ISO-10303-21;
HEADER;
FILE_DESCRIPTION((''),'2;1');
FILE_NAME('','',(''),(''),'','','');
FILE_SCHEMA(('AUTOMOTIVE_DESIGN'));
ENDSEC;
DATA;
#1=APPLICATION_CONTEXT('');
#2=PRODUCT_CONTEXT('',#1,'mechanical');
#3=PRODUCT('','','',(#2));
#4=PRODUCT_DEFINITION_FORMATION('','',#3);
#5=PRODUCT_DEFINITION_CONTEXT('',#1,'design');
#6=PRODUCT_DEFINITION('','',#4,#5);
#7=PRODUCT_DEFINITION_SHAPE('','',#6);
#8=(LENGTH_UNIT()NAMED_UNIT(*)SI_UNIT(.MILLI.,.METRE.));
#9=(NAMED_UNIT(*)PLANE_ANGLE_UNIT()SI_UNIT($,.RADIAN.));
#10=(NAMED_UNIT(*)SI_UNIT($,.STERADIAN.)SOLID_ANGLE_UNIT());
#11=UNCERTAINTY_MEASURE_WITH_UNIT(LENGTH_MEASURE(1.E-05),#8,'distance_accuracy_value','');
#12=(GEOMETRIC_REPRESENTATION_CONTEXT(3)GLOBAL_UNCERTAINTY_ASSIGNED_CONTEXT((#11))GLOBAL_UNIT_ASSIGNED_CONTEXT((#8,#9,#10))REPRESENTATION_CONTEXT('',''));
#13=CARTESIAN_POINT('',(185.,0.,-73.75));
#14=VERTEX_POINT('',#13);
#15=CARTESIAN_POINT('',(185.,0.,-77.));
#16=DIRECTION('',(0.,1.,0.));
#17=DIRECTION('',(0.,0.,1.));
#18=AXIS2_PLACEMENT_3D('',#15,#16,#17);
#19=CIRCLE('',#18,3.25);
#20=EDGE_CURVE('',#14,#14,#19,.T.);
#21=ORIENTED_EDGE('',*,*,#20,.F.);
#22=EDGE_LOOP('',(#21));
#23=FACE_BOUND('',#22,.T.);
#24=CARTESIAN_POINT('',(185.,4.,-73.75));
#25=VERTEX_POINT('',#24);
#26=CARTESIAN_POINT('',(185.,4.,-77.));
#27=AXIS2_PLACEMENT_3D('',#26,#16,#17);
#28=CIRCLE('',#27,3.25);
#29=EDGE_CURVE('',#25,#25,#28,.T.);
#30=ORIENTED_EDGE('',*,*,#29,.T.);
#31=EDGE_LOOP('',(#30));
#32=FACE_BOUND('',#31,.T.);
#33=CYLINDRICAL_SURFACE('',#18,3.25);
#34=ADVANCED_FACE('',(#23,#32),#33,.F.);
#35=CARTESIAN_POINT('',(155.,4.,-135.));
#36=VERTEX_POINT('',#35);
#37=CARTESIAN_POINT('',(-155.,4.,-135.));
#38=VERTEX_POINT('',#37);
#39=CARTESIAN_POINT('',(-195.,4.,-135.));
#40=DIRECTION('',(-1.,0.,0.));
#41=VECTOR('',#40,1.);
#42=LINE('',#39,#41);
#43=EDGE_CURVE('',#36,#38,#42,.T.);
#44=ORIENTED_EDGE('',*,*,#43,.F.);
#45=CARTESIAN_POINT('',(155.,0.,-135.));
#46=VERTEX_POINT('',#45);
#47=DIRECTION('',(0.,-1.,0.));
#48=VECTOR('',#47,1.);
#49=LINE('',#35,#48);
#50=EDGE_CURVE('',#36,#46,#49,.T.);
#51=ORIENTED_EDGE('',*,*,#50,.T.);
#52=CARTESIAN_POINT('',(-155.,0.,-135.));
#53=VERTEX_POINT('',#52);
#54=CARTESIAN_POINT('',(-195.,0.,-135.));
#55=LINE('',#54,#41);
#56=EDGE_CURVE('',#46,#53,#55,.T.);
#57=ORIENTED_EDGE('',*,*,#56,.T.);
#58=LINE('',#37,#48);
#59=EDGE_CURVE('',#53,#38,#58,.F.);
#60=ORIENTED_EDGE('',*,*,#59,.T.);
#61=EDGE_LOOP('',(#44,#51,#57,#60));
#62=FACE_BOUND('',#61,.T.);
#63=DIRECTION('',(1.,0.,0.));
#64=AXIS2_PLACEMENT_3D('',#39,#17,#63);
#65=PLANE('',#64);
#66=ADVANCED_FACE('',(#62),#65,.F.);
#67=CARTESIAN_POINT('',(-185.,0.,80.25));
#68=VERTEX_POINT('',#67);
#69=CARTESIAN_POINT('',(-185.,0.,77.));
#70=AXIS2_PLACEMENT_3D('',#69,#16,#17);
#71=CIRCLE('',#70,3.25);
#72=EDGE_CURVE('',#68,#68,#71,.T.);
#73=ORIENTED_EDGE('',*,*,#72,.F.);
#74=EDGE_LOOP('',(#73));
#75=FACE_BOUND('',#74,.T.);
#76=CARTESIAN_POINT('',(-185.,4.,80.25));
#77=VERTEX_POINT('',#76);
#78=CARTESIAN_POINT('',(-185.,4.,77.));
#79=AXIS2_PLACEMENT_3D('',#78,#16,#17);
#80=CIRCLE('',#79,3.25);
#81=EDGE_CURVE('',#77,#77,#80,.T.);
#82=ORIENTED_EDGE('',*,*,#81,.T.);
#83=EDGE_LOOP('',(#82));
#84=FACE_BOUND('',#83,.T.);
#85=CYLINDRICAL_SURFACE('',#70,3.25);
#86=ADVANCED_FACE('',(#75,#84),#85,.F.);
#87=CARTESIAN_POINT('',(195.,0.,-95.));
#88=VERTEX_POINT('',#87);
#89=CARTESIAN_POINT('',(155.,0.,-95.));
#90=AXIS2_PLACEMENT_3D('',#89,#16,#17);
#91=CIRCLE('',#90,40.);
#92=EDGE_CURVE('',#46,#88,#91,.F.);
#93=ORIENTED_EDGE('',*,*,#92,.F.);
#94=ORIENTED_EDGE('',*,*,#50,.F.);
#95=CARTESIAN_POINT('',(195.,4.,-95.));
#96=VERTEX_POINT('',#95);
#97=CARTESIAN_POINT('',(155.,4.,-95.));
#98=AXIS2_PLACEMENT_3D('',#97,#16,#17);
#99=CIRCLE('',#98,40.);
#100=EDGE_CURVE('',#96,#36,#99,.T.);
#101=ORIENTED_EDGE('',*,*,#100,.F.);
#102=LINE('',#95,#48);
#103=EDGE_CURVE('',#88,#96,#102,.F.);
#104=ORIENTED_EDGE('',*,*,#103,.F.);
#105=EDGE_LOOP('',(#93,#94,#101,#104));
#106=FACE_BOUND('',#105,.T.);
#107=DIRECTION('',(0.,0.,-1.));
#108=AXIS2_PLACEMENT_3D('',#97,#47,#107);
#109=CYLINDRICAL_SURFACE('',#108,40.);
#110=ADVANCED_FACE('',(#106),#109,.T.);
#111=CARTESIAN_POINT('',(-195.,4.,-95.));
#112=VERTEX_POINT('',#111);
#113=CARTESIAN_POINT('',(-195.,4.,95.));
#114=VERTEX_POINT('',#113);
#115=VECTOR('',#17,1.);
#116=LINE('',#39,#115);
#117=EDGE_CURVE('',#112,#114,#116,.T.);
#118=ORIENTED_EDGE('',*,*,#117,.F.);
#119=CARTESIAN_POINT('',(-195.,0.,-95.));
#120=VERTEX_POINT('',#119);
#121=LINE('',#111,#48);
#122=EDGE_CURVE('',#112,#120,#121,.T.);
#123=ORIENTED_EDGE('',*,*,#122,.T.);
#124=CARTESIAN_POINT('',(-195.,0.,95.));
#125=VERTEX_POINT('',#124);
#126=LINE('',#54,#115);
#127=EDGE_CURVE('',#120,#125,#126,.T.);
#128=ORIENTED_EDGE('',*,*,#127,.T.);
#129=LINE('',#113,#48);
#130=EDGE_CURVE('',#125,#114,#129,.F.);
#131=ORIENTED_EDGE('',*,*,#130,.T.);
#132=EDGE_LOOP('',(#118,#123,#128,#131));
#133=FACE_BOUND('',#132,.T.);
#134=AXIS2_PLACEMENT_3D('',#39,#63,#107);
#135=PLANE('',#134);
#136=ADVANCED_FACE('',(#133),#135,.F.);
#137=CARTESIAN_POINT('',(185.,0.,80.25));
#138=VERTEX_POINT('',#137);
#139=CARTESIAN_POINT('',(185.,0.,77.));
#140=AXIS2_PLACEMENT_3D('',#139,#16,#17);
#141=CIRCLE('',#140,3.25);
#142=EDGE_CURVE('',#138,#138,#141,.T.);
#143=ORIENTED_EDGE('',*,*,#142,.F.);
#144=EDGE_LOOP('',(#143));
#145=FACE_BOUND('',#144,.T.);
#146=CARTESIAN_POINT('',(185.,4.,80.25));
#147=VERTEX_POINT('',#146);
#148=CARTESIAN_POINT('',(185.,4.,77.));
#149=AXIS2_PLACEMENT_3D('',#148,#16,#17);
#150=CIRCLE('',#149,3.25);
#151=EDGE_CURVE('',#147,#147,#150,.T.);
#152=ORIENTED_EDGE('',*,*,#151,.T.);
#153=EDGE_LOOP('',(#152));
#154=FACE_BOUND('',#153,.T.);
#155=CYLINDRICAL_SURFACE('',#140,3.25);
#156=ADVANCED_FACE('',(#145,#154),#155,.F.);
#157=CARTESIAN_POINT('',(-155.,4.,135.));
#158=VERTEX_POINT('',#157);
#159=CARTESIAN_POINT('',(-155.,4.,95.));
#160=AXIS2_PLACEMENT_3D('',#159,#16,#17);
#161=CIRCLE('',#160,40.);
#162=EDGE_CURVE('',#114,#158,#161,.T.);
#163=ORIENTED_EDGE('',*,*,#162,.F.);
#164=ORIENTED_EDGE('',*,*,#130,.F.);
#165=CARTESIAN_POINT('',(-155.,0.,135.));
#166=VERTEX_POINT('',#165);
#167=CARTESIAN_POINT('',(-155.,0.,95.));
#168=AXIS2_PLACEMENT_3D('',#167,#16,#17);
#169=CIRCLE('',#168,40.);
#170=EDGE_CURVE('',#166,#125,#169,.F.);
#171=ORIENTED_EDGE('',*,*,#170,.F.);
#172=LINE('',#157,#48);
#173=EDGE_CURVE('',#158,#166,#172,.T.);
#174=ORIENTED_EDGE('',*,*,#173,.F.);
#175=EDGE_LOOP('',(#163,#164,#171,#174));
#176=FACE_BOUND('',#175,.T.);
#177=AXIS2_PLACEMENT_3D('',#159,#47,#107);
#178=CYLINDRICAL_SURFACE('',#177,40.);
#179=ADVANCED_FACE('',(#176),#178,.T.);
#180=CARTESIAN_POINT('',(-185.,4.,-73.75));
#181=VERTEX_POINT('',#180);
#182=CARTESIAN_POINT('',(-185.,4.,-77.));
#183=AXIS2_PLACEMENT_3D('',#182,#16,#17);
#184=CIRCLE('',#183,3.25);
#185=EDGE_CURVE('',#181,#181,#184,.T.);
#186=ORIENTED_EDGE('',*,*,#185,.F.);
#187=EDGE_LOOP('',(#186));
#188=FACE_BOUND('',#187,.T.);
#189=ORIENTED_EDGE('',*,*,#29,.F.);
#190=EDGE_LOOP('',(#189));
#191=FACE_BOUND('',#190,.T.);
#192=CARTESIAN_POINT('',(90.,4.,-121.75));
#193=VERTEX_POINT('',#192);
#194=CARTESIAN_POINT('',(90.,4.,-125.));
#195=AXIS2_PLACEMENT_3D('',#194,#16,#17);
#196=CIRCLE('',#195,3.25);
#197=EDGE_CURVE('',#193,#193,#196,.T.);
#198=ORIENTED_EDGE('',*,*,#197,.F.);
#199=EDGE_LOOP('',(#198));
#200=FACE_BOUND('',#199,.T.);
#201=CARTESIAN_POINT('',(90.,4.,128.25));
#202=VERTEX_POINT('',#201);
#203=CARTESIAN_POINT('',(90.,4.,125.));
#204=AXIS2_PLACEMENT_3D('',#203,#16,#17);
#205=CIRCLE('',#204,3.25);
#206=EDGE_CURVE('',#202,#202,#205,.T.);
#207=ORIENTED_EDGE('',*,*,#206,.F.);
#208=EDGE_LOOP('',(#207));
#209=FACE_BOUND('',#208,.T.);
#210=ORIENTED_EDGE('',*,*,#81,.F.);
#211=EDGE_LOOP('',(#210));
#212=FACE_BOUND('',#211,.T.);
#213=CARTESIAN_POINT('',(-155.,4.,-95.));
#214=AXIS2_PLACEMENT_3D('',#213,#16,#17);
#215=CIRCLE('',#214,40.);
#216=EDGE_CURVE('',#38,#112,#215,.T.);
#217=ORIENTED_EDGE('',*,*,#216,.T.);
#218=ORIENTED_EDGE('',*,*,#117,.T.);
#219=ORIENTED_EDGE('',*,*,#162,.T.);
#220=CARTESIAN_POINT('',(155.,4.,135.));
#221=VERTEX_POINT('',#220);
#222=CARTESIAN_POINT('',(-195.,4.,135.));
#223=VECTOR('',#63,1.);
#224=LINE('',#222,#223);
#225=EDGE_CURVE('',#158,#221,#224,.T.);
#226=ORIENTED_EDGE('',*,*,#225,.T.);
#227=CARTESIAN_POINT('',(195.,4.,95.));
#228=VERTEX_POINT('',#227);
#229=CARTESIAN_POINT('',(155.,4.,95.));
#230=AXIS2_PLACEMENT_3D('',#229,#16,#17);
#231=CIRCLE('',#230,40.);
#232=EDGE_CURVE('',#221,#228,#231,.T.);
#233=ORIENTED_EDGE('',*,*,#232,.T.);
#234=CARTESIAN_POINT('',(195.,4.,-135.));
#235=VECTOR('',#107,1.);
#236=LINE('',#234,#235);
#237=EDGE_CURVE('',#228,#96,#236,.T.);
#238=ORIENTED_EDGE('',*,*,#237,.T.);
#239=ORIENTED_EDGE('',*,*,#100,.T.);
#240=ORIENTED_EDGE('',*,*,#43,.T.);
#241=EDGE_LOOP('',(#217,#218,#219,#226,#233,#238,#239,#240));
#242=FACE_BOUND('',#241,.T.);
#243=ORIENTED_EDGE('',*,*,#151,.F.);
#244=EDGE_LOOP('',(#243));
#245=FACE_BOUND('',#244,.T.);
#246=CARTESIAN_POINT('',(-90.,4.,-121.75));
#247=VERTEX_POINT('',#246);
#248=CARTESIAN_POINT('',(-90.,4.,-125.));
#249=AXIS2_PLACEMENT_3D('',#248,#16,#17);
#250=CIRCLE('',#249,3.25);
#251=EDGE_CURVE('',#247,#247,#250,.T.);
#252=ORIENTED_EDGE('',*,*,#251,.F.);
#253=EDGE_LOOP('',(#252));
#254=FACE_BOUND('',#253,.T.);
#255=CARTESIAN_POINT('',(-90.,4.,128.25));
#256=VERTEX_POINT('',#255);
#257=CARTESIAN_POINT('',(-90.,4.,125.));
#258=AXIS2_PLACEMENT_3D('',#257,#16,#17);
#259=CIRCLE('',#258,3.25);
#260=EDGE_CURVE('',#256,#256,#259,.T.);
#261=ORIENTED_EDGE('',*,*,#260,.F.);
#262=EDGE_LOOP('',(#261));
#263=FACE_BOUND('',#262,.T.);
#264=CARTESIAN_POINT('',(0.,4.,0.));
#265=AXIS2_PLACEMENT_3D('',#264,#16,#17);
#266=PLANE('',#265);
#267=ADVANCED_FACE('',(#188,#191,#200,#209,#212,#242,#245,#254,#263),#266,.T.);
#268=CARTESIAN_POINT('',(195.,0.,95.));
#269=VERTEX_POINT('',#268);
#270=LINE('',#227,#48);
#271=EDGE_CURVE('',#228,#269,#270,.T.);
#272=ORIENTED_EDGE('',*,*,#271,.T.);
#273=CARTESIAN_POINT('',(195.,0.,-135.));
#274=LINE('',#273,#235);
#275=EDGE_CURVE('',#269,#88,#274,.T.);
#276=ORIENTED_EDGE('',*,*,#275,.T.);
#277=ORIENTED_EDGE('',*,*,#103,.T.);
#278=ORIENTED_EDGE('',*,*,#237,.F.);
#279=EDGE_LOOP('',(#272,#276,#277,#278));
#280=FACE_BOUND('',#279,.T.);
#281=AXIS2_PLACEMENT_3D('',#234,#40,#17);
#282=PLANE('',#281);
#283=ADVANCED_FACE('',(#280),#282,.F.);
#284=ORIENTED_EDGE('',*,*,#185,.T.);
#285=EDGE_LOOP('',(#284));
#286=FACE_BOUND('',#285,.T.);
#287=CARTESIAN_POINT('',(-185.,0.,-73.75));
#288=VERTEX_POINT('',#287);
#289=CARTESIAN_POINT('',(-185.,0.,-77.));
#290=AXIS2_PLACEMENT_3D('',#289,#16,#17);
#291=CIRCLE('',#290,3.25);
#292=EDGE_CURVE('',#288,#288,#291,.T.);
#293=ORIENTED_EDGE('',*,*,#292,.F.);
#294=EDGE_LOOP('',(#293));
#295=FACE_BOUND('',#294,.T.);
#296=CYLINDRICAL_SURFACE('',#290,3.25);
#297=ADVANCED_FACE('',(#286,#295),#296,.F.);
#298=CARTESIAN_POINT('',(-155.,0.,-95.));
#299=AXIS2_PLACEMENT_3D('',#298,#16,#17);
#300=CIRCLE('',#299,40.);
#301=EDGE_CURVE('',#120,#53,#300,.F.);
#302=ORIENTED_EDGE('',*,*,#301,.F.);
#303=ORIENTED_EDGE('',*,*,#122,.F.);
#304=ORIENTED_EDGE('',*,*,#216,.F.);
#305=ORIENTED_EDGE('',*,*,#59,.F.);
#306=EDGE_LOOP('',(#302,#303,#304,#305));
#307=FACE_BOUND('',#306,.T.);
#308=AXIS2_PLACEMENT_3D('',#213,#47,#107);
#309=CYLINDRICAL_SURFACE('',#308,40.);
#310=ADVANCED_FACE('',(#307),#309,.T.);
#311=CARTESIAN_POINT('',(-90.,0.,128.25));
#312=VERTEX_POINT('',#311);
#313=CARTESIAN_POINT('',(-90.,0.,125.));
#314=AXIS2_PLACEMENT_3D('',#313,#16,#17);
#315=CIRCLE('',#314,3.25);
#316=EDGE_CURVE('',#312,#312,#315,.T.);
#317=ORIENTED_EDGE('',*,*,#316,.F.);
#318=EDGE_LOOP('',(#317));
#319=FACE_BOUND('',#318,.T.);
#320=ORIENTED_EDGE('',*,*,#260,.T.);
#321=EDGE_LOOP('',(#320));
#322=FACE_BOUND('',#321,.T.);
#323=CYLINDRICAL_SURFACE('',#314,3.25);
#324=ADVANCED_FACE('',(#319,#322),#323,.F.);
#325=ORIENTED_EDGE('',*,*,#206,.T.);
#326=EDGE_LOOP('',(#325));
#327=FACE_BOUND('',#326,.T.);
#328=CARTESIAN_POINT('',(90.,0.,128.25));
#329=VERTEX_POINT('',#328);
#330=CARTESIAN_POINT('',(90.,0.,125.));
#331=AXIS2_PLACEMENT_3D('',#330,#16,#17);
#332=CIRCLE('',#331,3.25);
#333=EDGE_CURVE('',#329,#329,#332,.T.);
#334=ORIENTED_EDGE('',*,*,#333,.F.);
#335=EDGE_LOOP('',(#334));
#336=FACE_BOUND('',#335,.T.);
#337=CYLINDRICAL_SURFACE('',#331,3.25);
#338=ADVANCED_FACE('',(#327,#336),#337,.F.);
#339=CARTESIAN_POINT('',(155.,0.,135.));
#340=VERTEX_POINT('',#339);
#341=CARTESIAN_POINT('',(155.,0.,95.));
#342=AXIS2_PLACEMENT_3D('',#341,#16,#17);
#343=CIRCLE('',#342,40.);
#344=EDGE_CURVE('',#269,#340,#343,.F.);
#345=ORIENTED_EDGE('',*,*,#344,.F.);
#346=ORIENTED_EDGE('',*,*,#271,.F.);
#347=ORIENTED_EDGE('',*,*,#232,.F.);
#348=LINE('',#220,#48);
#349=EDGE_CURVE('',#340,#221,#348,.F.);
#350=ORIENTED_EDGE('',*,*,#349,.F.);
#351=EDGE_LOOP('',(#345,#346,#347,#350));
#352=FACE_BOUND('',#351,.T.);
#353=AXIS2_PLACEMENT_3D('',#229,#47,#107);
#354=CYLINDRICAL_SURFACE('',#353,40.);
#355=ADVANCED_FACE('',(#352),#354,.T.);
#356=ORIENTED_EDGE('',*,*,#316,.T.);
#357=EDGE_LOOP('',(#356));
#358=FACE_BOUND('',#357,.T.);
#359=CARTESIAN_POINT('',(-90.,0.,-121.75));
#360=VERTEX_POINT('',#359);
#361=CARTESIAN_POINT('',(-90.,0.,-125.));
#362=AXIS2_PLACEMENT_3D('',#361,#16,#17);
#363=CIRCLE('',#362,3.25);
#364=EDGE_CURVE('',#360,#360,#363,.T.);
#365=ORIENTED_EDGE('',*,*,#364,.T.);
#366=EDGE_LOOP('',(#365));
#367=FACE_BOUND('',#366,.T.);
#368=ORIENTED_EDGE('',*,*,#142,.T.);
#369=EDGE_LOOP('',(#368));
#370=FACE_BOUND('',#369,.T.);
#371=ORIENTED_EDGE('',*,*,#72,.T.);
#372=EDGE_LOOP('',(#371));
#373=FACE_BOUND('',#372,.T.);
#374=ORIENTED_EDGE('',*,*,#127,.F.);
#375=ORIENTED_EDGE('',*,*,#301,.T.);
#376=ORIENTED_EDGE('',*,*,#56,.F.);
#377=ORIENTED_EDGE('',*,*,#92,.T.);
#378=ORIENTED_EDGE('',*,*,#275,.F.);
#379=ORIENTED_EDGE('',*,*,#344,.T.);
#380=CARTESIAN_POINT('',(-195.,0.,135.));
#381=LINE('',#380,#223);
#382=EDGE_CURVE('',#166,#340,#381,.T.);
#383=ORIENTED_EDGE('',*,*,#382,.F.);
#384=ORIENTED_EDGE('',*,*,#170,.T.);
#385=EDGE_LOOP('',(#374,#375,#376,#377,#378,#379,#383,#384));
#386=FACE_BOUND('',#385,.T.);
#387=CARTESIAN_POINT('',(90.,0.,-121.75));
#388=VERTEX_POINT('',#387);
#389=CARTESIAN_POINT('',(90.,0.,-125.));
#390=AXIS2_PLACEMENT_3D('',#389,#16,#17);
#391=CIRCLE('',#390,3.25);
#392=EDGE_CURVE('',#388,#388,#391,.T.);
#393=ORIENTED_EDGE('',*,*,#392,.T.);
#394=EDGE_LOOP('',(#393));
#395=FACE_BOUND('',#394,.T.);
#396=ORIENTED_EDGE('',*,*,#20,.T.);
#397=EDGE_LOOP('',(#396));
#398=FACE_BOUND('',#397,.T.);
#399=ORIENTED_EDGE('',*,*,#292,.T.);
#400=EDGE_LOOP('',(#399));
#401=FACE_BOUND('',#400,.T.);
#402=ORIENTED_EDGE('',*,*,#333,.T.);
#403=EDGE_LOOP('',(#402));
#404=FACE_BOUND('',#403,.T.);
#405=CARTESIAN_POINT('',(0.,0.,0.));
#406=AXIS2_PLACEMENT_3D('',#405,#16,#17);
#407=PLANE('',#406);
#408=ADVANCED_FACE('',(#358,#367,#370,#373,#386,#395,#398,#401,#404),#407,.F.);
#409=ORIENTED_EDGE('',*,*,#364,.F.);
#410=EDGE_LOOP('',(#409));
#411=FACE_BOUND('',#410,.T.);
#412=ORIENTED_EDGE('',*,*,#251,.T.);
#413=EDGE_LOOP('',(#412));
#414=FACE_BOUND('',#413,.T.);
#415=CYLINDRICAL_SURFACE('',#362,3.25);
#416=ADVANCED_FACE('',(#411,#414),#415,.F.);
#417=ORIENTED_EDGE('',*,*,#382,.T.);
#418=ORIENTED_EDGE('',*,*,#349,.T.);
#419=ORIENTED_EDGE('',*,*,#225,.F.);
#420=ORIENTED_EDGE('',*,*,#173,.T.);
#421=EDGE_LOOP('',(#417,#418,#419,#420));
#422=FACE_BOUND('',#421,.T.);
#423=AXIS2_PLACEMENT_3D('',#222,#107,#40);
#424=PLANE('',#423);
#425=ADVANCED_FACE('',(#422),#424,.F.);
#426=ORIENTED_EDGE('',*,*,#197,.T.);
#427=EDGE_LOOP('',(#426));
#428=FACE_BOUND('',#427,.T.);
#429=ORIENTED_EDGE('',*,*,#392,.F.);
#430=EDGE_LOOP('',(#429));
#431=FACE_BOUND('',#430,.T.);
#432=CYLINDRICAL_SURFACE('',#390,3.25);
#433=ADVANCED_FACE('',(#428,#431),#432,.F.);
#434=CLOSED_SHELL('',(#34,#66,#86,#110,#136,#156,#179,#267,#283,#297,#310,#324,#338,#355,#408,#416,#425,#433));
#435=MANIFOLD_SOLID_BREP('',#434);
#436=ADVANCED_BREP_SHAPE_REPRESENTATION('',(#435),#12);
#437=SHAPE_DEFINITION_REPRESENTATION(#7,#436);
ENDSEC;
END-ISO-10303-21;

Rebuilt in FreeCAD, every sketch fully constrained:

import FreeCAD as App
import Part
import Sketcher
from FreeCAD import Vector


def edges_at(feature, points):
    """Names of the edges that pass closest to the given points."""
    edges = feature.Shape.Edges
    near = lambda p: min(range(len(edges)), key=lambda i: edges[i].distToShape(Part.Vertex(*p))[0])
    return sorted({f"Edge{near(p) + 1}" for p in points})

doc = App.newDocument("Part")
params = doc.addObject("Spreadsheet::Sheet", "Params")
for row, (alias, value) in enumerate([
    ("sketch1_width", "390 mm"),
    ("sketch1_height", "270 mm"),
    ("pad1_length", "4 mm"),
    ("fillet_radius", "40 mm"),
    ("sketch2_diameter", "6.5 mm"),
], start=1):
    params.set(f"A{row}", alias)
    params.set(f"B{row}", "=" + value)
    params.setAlias(f"B{row}", alias)

body = doc.addObject("PartDesign::Body", "Body")

# Sketch on XZ plane
sketch1 = body.newObject("Sketcher::SketchObject", "Sketch")
sketch1.AttachmentSupport = (doc.getObject("XZ_Plane"), [""])
sketch1.MapMode = "FlatFace"
sketch1.addGeometry([
    Part.LineSegment(Vector(-195, -135, 0), Vector(-195, 135, 0)),
    Part.LineSegment(Vector(-195, 135, 0), Vector(195, 135, 0)),
    Part.LineSegment(Vector(195, 135, 0), Vector(195, -135, 0)),
    Part.LineSegment(Vector(195, -135, 0), Vector(-195, -135, 0)),
], False)
sketch1.addConstraint([
    Sketcher.Constraint("Coincident", 0, 2, 1, 1),
    Sketcher.Constraint("Coincident", 1, 2, 2, 1),
    Sketcher.Constraint("Coincident", 2, 2, 3, 1),
    Sketcher.Constraint("Coincident", 3, 2, 0, 1),
    Sketcher.Constraint("Vertical", 0),
    Sketcher.Constraint("Horizontal", 1),
    Sketcher.Constraint("Vertical", 2),
    Sketcher.Constraint("Horizontal", 3),
    Sketcher.Constraint("Symmetric", 0, 2, 2, 2, -1, 1),
    Sketcher.Constraint("DistanceX", 1, 1, 1, 2, 390.0),
    Sketcher.Constraint("DistanceY", 0, 1, 0, 2, 270.0),
])
sketch1.setExpression("Constraints[9]", "Params.sketch1_width")
sketch1.setExpression("Constraints[10]", "Params.sketch1_height")
pad1 = body.newObject("PartDesign::Pad", "Pad")
pad1.Profile = sketch1
pad1.setExpression("Length", "Params.pad1_length")
pad1.Reversed = True
doc.recompute()

fillet = body.newObject("PartDesign::Fillet", "Fillet")
fillet.Base = (pad1, edges_at(pad1, [
    (195, 2, 135),
    (-195, 2, 135),
    (-195, 2, -135),
    (195, 2, -135),
]))
fillet.setExpression("Radius", "Params.fillet_radius")

# Sketch on XZ plane
sketch2 = body.newObject("Sketcher::SketchObject", "Sketch001")
sketch2.AttachmentSupport = (doc.getObject("XZ_Plane"), [""])
sketch2.MapMode = "FlatFace"
sketch2.AttachmentOffset = App.Placement(Vector(0, 0, -4), App.Rotation())
sketch2.addGeometry([
    Part.Circle(Vector(-185, 77, 0), Vector(0, 0, 1), 3.2),  # 0
    Part.Circle(Vector(-185, -77, 0), Vector(0, 0, 1), 3.2),  # 1
    Part.Circle(Vector(-90, -125, 0), Vector(0, 0, 1), 3.2),  # 2
    Part.Circle(Vector(-90, 125, 0), Vector(0, 0, 1), 3.2),  # 3
    Part.Circle(Vector(90, 125, 0), Vector(0, 0, 1), 3.2),  # 4
    Part.Circle(Vector(185, 77, 0), Vector(0, 0, 1), 3.2),  # 5
    Part.Circle(Vector(185, -77, 0), Vector(0, 0, 1), 3.2),  # 6
    Part.Circle(Vector(90, -125, 0), Vector(0, 0, 1), 3.2),  # 7
], False)
sketch2.addConstraint([
    Sketcher.Constraint("Equal", 0, 1),
    Sketcher.Constraint("Equal", 1, 2),
    Sketcher.Constraint("Equal", 2, 3),
    Sketcher.Constraint("Equal", 3, 4),
    Sketcher.Constraint("Equal", 4, 5),
    Sketcher.Constraint("Equal", 5, 6),
    Sketcher.Constraint("Equal", 6, 7),
    Sketcher.Constraint("Symmetric", 2, 3, 4, 3, -1, 1),
    Sketcher.Constraint("Symmetric", 1, 3, 5, 3, -1, 1),
    Sketcher.Constraint("Symmetric", 0, 3, 6, 3, -1, 1),
    Sketcher.Constraint("Symmetric", 3, 3, 7, 3, -1, 1),
    Sketcher.Constraint("Symmetric", 3, 3, 4, 3, -2),
    Sketcher.Constraint("Symmetric", 0, 3, 5, 3, -2),
    Sketcher.Constraint("Diameter", 0, 6.5),
    Sketcher.Constraint("DistanceX", 0, 3, -1, 1, 185.0),
    Sketcher.Constraint("DistanceY", -1, 1, 0, 3, 77.0),
    Sketcher.Constraint("DistanceX", 2, 3, -1, 1, 90.0),
    Sketcher.Constraint("DistanceY", 2, 3, -1, 1, 125.0),
])
sketch2.setExpression("Constraints[13]", "Params.sketch2_diameter")
pocket1 = body.newObject("PartDesign::Pocket", "Pocket")
pocket1.Profile = sketch2
pocket1.Type = "ThroughAll"
pocket1.Reversed = True

doc.recompute()
